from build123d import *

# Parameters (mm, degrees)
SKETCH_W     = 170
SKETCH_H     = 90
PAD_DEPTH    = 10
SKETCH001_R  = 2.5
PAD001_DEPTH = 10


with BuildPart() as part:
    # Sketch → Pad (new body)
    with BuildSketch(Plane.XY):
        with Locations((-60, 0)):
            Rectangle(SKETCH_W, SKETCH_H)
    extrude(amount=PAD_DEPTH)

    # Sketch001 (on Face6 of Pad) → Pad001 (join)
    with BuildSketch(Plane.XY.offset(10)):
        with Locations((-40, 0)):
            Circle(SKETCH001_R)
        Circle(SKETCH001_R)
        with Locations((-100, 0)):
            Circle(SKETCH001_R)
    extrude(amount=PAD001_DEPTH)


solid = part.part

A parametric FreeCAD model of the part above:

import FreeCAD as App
import Part
import Sketcher

V = App.Vector


def add_polygon(sketch, points):
    """Adds a closed chain of lines whose ends are joined by coincident constraints."""
    first, n = sketch.GeometryCount, len(points)
    for a, b in zip(points, points[1:] + points[:1]):
        sketch.addGeometry(Part.LineSegment(App.Vector(*a, 0), App.Vector(*b, 0)), False)
    for i in range(n):
        sketch.addConstraint(Sketcher.Constraint("Coincident", first + i, 2, first + (i + 1) % n, 1))

doc = App.newDocument("Part")
body = doc.addObject("PartDesign::Body", "Body")

# Sketch on XY plane
sketch1 = doc.addObject("Sketcher::SketchObject", "Sketch")
body.addObject(sketch1)
sketch1.AttachmentSupport = (doc.XY_Plane, [""])
sketch1.MapMode = "FlatFace"
add_polygon(sketch1, [(-145, 45), (-145, -45), (25, -45), (25, 45)])  # lines 0-3
sketch1.addConstraint(Sketcher.Constraint("Vertical", 0))
sketch1.addConstraint(Sketcher.Constraint("Horizontal", 1))
sketch1.addConstraint(Sketcher.Constraint("Vertical", 2))
sketch1.addConstraint(Sketcher.Constraint("Horizontal", 3))
sketch1.addConstraint(Sketcher.Constraint("DistanceX", 1, 1, 1, 2, 170.0))
sketch1.addConstraint(Sketcher.Constraint("DistanceY", 0, 2, 0, 1, 90.0))
sketch1.addConstraint(Sketcher.Constraint("DistanceX", 0, 2, -1, 1, 145.0))
sketch1.addConstraint(Sketcher.Constraint("DistanceY", 0, 2, -1, 1, 45.0))
pad1 = doc.addObject("PartDesign::Pad", "Pad")
body.addObject(pad1)
pad1.Profile = sketch1
pad1.Length = 10

# Sketch on XY plane
sketch2 = doc.addObject("Sketcher::SketchObject", "Sketch001")
body.addObject(sketch2)
sketch2.AttachmentSupport = (doc.XY_Plane, [""])
sketch2.MapMode = "FlatFace"
sketch2.AttachmentOffset = App.Placement(V(0, 0, 10), App.Rotation())
sketch2.addGeometry(Part.Circle(V(-40, 0, 0), V(0, 0, 1), 2.5), False)
sketch2.addGeometry(Part.Circle(V(0, 0, 0), V(0, 0, 1), 2.5), False)
sketch2.addGeometry(Part.Circle(V(-100, 0, 0), V(0, 0, 1), 2.5), False)
sketch2.addConstraint(Sketcher.Constraint("Coincident", 1, 3, -1, 1))
sketch2.addConstraint(Sketcher.Constraint("Equal", 0, 1))
sketch2.addConstraint(Sketcher.Constraint("Equal", 1, 2))
sketch2.addConstraint(Sketcher.Constraint("PointOnObject", 0, 3, -1))
sketch2.addConstraint(Sketcher.Constraint("PointOnObject", 2, 3, -1))
sketch2.addConstraint(Sketcher.Constraint("Diameter", 0, 5.0))
sketch2.addConstraint(Sketcher.Constraint("DistanceX", 0, 3, -1, 1, 40.0))
sketch2.addConstraint(Sketcher.Constraint("DistanceX", 2, 3, -1, 1, 100.0))
pad2 = doc.addObject("PartDesign::Pad", "Pad001")
body.addObject(pad2)
pad2.Profile = sketch2
pad2.Length = 10

doc.recompute()
